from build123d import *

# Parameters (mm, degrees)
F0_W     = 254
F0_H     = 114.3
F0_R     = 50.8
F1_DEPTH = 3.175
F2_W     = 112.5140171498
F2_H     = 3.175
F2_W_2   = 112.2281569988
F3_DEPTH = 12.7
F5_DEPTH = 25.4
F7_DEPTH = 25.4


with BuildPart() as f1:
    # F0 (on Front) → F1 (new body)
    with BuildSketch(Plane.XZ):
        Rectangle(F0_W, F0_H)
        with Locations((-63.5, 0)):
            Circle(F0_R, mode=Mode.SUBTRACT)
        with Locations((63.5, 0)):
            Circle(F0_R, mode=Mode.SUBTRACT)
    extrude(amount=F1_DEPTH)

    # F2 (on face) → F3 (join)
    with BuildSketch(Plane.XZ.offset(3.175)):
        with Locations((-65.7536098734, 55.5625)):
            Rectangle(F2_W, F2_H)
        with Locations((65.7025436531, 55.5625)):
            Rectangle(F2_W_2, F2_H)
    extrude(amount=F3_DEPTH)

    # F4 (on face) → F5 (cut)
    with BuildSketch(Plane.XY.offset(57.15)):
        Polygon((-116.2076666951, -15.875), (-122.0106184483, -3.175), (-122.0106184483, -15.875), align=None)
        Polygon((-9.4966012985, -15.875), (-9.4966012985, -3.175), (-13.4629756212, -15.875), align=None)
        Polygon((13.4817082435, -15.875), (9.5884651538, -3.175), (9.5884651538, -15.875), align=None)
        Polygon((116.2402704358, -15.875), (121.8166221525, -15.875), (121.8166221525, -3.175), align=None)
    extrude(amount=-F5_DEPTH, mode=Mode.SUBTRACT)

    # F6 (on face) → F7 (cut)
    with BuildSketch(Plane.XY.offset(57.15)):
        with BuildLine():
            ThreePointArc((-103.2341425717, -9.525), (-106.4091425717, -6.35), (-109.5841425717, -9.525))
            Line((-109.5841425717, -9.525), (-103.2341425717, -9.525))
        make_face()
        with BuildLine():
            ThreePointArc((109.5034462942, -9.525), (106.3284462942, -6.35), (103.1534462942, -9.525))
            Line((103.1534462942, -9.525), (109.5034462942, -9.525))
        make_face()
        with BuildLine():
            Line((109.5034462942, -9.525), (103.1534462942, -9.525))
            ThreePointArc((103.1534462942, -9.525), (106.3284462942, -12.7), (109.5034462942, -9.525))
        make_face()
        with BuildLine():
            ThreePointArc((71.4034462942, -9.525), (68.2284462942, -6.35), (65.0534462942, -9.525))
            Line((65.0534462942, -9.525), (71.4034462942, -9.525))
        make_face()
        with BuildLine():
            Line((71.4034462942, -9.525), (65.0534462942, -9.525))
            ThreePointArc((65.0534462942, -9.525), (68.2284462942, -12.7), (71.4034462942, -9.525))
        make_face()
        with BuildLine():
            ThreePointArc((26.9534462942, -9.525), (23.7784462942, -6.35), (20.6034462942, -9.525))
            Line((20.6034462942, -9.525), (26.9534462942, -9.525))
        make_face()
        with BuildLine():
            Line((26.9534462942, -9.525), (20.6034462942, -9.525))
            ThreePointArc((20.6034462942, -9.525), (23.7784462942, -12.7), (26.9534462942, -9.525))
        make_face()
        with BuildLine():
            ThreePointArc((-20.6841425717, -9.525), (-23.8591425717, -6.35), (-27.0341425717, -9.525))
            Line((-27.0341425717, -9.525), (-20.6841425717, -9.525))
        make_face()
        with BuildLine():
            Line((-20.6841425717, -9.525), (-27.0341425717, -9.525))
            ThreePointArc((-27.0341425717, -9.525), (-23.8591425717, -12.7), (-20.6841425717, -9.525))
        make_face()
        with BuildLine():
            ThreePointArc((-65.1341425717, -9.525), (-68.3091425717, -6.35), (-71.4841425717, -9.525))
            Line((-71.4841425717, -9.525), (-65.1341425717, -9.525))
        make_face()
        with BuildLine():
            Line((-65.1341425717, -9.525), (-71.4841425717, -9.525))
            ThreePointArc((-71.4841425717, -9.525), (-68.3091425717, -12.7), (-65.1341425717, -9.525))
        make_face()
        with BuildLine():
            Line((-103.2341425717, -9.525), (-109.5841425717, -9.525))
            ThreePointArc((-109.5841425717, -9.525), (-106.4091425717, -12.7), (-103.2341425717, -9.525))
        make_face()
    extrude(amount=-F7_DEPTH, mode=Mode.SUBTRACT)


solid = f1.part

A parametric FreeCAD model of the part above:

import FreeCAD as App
import Part
import Sketcher
Q = App.Units.Quantity


def add_polygon(sketch, points):
    """Adds a closed chain of lines whose ends are joined by coincident constraints."""
    first, n = sketch.GeometryCount, len(points)
    for a, b in zip(points, points[1:] + points[:1]):
        sketch.addGeometry(Part.LineSegment(App.Vector(*a, 0), App.Vector(*b, 0)), False)
    for i in range(n):
        sketch.addConstraint(Sketcher.Constraint("Coincident", first + i, 2, first + (i + 1) % n, 1))

doc = App.newDocument("Part")
body = doc.addObject("PartDesign::Body", "Body")

# Sketch on XZ plane
sketch1 = body.newObject("Sketcher::SketchObject", "Sketch")
sketch1.AttachmentSupport = (doc.getObject("XZ_Plane"), [""])
sketch1.MapMode = "FlatFace"
add_polygon(sketch1, [(-127, 57), (-127, -57), (127, -57), (127, 57)])  # lines 0-3
sketch1.addGeometry(Part.Circle(App.Vector(-64, 0, 0), App.Vector(0, 0, 1), 51), False)  # 4
sketch1.addGeometry(Part.Circle(App.Vector(64, 0, 0), App.Vector(0, 0, 1), 51), False)  # 5
sketch1.addConstraint([
    Sketcher.Constraint("Vertical", 0),
    Sketcher.Constraint("Horizontal", 1),
    Sketcher.Constraint("Vertical", 2),
    Sketcher.Constraint("Horizontal", 3),
    Sketcher.Constraint("Equal", 4, 5),
    Sketcher.Constraint("Symmetric", 4, 3, 5, 3, -1, 1),
    Sketcher.Constraint("Symmetric", 0, 2, 2, 2, -1, 1),
    Sketcher.Constraint("PointOnObject", 4, 3, -1),
    Sketcher.Constraint("Diameter", 4, Q("4 in")),
    Sketcher.Constraint("DistanceX", 1, 1, 1, 2, Q("10 in")),
    Sketcher.Constraint("DistanceY", 0, 2, 0, 1, Q("4.5 in")),
    Sketcher.Constraint("DistanceX", 4, 3, 5, 3, Q("5 in")),
])
pad1 = body.newObject("PartDesign::Pad", "Pad")
pad1.Profile = sketch1
pad1.Length = Q("0.125 in")

# Sketch on XZ plane
sketch2 = body.newObject("Sketcher::SketchObject", "Sketch001")
sketch2.AttachmentSupport = (doc.getObject("XZ_Plane"), [""])
sketch2.MapMode = "FlatFace"
sketch2.AttachmentOffset = App.Placement(App.Vector(0, 0, 0.125 * 25.4), App.Rotation())
add_polygon(sketch2, [(-122, 57.1), (-122, 54), (-9.5, 54), (-9.5, 57.1)])  # lines 0-3
add_polygon(sketch2, [(9.6, 57.1), (9.6, 54), (121.8, 54), (121.8, 57.1)])  # lines 4-7
sketch2.addConstraint([
    Sketcher.Constraint("Vertical", 0),
    Sketcher.Constraint("Horizontal", 1),
    Sketcher.Constraint("Vertical", 2),
    Sketcher.Constraint("Horizontal", 3),
    Sketcher.Constraint("Vertical", 4),
    Sketcher.Constraint("Horizontal", 5),
    Sketcher.Constraint("Vertical", 6),
    Sketcher.Constraint("Horizontal", 7),
    Sketcher.Constraint("Horizontal", 1, 2, 4, 2),
    Sketcher.Constraint("Horizontal", 3, 2, 6, 2),
    Sketcher.Constraint("DistanceY", 0, 2, 0, 1, Q("0.125 in")),
    Sketcher.Constraint("DistanceY", -1, 1, 2, 2, Q("2.25 in")),
    Sketcher.Constraint("DistanceX", 1, 2, -1, 1, 9.496601),
    Sketcher.Constraint("DistanceX", 1, 1, 1, 2, 112.514017),
    Sketcher.Constraint("DistanceX", 5, 1, 5, 2, 112.228157),
    Sketcher.Constraint("DistanceX", 0, 2, 5, 2, 243.827241),
])
pad2 = body.newObject("PartDesign::Pad", "Pad001")
pad2.Profile = sketch2
pad2.Length = Q("0.5 in")

# Sketch on XY plane
sketch3 = body.newObject("Sketcher::SketchObject", "Sketch002")
sketch3.AttachmentSupport = (doc.getObject("XY_Plane"), [""])
sketch3.MapMode = "FlatFace"
sketch3.AttachmentOffset = App.Placement(App.Vector(0, 0, 2.25 * 25.4), App.Rotation())
add_polygon(sketch3, [(-116.2, -15.9), (-122, -3.2), (-122, -15.9)])  # lines 0-2
add_polygon(sketch3, [(-9.5, -15.9), (-9.5, -3.2), (-13.5, -15.9)])  # lines 3-5
add_polygon(sketch3, [(13.5, -15.9), (9.6, -3.2), (9.6, -15.9)])  # lines 6-8
add_polygon(sketch3, [(116.2, -15.9), (121.8, -15.9), (121.8, -3.2)])  # lines 9-11
sketch3.addConstraint([
    Sketcher.Constraint("Vertical", 1),
    Sketcher.Constraint("Horizontal", 2),
    Sketcher.Constraint("Vertical", 3),
    Sketcher.Constraint("Horizontal", 5),
    Sketcher.Constraint("Vertical", 7),
    Sketcher.Constraint("Horizontal", 8),
    Sketcher.Constraint("Horizontal", 9),
    Sketcher.Constraint("Vertical", 10),
    Sketcher.Constraint("Horizontal", 0, 2, 3, 2),
    Sketcher.Constraint("Horizontal", 2, 2, 4, 2),
    Sketcher.Constraint("Horizontal", 3, 2, 6, 2),
    Sketcher.Constraint("Horizontal", 5, 2, 7, 2),
    Sketcher.Constraint("Horizontal", 8, 2, 9, 2),
    Sketcher.Constraint("Horizontal", 6, 2, 10, 2),
    Sketcher.Constraint("DistanceY", 1, 2, 1, 1, Q("0.5 in")),
    Sketcher.Constraint("DistanceY", 0, 2, -1, 1, Q("0.125 in")),
    Sketcher.Constraint("DistanceX", 2, 1, 2, 2, 5.802952),
    Sketcher.Constraint("DistanceX", 9, 1, 9, 2, 5.576352),
    Sketcher.Constraint("DistanceX", 3, 2, -1, 1, 9.496601),
    Sketcher.Constraint("Distance", 6, 13.283348),
    Sketcher.Constraint("DistanceX", 5, 1, 5, 2, 3.966374),
    Sketcher.Constraint("DistanceX", 0, 2, -1, 1, 122.010618),
    Sketcher.Constraint("DistanceX", -1, 1, 8, 2, 13.481708),
    Sketcher.Constraint("DistanceX", -1, 1, 11, 2, 116.24027),
])
pocket1 = body.newObject("PartDesign::Pocket", "Pocket")
pocket1.Profile = sketch3
pocket1.Length = Q("1 in")

# Sketch on XY plane
sketch4 = body.newObject("Sketcher::SketchObject", "Sketch003")
sketch4.AttachmentSupport = (doc.getObject("XY_Plane"), [""])
sketch4.MapMode = "FlatFace"
sketch4.AttachmentOffset = App.Placement(App.Vector(0, 0, 2.25 * 25.4), App.Rotation())
sketch4.addGeometry([
    Part.Circle(App.Vector(-106.4, -9.5, 0), App.Vector(0, 0, 1), 3.2),  # 0
    Part.Circle(App.Vector(106.3, -9.5, 0), App.Vector(0, 0, 1), 3.2),  # 1
    Part.Circle(App.Vector(68.2, -9.5, 0), App.Vector(0, 0, 1), 3.2),  # 2
    Part.Circle(App.Vector(23.8, -9.5, 0), App.Vector(0, 0, 1), 3.2),  # 3
    Part.Circle(App.Vector(-23.9, -9.5, 0), App.Vector(0, 0, 1), 3.2),  # 4
    Part.Circle(App.Vector(-68.3, -9.5, 0), App.Vector(0, 0, 1), 3.2),  # 5
], False)
sketch4.addConstraint([
    Sketcher.Constraint("Equal", 0, 1),
    Sketcher.Constraint("Equal", 1, 2),
    Sketcher.Constraint("Equal", 2, 3),
    Sketcher.Constraint("Equal", 3, 4),
    Sketcher.Constraint("Equal", 4, 5),
    Sketcher.Constraint("Horizontal", 0, 3, 1, 3),
    Sketcher.Constraint("Horizontal", 1, 3, 2, 3),
    Sketcher.Constraint("Horizontal", 2, 3, 3, 3),
    Sketcher.Constraint("Horizontal", 3, 3, 4, 3),
    Sketcher.Constraint("Horizontal", 4, 3, 5, 3),
    Sketcher.Constraint("Diameter", 0, Q("0.25 in")),
    Sketcher.Constraint("DistanceX", 2, 3, 1, 3, Q("1.5 in")),
    Sketcher.Constraint("DistanceX", 0, 3, 5, 3, Q("1.5 in")),
    Sketcher.Constraint("DistanceX", 3, 3, 2, 3, Q("1.75 in")),
    Sketcher.Constraint("DistanceX", 0, 3, 4, 3, Q("3.25 in")),
    Sketcher.Constraint("DistanceY", 0, 3, -1, 1, Q("0.375 in")),
    Sketcher.Constraint("DistanceX", 0, 3, 1, 3, 212.737589),
    Sketcher.Constraint("DistanceX", 0, 3, -1, 1, 106.409143),
])
pocket2 = body.newObject("PartDesign::Pocket", "Pocket001")
pocket2.Profile = sketch4
pocket2.Length = Q("1 in")

doc.recompute()
